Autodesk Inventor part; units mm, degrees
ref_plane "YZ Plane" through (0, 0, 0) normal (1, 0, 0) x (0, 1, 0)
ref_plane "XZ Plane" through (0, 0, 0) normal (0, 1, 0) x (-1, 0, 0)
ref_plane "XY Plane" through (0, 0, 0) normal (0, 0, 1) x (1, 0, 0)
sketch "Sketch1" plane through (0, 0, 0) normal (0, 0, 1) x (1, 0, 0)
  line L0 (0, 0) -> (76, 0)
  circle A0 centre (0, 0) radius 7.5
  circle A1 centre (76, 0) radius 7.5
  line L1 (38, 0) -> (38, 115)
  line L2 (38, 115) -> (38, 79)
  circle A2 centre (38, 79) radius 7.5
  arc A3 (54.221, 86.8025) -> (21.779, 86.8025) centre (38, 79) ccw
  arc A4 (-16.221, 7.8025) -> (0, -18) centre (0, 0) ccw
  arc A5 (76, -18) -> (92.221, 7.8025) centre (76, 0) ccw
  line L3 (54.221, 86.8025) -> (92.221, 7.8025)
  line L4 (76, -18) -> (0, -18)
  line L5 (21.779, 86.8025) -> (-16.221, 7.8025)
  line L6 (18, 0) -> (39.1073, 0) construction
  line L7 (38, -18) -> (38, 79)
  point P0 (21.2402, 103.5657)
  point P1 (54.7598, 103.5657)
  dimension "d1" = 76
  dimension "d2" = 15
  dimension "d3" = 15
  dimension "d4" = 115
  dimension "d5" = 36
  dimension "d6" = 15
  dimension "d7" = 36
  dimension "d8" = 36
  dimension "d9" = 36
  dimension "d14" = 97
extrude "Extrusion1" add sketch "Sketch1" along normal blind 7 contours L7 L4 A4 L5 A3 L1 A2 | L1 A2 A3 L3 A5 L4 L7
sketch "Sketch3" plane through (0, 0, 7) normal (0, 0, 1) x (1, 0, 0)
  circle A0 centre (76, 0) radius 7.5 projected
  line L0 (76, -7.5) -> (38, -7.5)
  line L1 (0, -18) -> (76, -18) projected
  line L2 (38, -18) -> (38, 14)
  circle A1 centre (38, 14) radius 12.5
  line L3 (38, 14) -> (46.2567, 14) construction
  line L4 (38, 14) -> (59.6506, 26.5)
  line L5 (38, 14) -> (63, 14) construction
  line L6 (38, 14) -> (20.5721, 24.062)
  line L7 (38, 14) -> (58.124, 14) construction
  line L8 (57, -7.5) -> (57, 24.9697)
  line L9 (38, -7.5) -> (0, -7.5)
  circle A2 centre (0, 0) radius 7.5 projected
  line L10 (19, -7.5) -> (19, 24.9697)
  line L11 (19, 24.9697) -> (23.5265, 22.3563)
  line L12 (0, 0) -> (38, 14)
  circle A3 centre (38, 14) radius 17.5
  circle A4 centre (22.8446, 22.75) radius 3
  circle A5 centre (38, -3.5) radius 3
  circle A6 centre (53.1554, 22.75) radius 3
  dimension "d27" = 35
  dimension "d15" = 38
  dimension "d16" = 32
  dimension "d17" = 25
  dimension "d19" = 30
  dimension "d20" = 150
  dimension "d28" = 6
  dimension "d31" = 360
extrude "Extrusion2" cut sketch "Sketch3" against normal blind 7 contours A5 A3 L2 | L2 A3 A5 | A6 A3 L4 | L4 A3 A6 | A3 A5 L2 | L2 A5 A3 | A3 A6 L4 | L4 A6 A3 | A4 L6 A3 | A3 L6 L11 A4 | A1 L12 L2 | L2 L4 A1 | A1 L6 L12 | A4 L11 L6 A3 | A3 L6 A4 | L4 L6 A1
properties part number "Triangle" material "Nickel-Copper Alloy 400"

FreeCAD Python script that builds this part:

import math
import FreeCAD as App
import Part
import Sketcher
from FreeCAD import Vector
Q = App.Units.Quantity

doc = App.newDocument("Part")
body = doc.addObject("PartDesign::Body", "Body")

# Sketch on XY plane
sketch1 = body.newObject("Sketcher::SketchObject", "Sketch")
sketch1.AttachmentSupport = (doc.getObject("XY_Plane"), [""])
sketch1.MapMode = "FlatFace"
sketch1.addGeometry([
    Part.LineSegment(Vector(0, -18, 0), Vector(76, -18, 0)),  # 0
    Part.ArcOfCircle(Part.Circle(Vector(76, 0, 0), Vector(0, 0, 1), 18), math.radians(-90), math.radians(25.688125)),  # 1
    Part.LineSegment(Vector(92.221, 7.8025, 0), Vector(54.221, 86.8025, 0)),  # 2
    Part.ArcOfCircle(Part.Circle(Vector(38, 79, 0), Vector(0, 0, 1), 17.999996), math.radians(25.688125), math.radians(154.311875)),  # 3
    Part.LineSegment(Vector(21.779, 86.8025, 0), Vector(-16.221, 7.8025, 0)),  # 4
    Part.ArcOfCircle(Part.Circle(Vector(0, 0, 0), Vector(0, 0, 1), 17.999996), math.radians(154.311875), math.radians(270)),  # 5
    Part.Circle(Vector(38, 79, 0), Vector(0, 0, 1), 7.5),  # 6
    Part.Circle(Vector(0, 0, 0), Vector(0, 0, 1), 7.5),  # 7
    Part.Circle(Vector(76, 0, 0), Vector(0, 0, 1), 7.5),  # 8
], False)
sketch1.addConstraint([
    Sketcher.Constraint("Tangent", 0, 2, 1, 1),
    Sketcher.Constraint("Tangent", 1, 2, 2, 1),
    Sketcher.Constraint("Tangent", 2, 2, 3, 1),
    Sketcher.Constraint("Tangent", 3, 2, 4, 1),
    Sketcher.Constraint("Tangent", 4, 2, 5, 1),
    Sketcher.Constraint("Tangent", 5, 2, 0, 1),
    Sketcher.Constraint("Horizontal", 0),
    Sketcher.Constraint("Coincident", 5, 3, -1, 1),
    Sketcher.Constraint("Coincident", 7, 3, -1, 1),
    Sketcher.Constraint("Coincident", 6, 3, 3, 3),
    Sketcher.Constraint("Coincident", 8, 3, 1, 3),
    Sketcher.Constraint("Equal", 1, 3),
    Sketcher.Constraint("Equal", 3, 5),
    Sketcher.Constraint("Equal", 6, 7),
    Sketcher.Constraint("Equal", 7, 8),
    Sketcher.Constraint("Horizontal", 2, 2, 3, 2),
    Sketcher.Constraint("Diameter", 6, Q("15 mm")),
    Sketcher.Constraint("Radius", 1, Q("18 mm")),
    Sketcher.Constraint("DistanceX", 0, 1, 0, 2, Q("76 mm")),
    Sketcher.Constraint("DistanceY", 0, 2, 3, 3, Q("97 mm")),
])
pad1 = body.newObject("PartDesign::Pad", "Pad")
pad1.Profile = sketch1
pad1.Length = 7

# Sketch on XY plane
sketch2 = body.newObject("Sketcher::SketchObject", "Sketch001")
sketch2.AttachmentSupport = (doc.getObject("XY_Plane"), [""])
sketch2.MapMode = "FlatFace"
sketch2.AttachmentOffset = App.Placement(Vector(0, 0, 7), App.Rotation())
sketch2.addGeometry([
    Part.Circle(Vector(38, -3.5, 0), Vector(0, 0, 1), 3),
    Part.Circle(Vector(53.1554, 22.75, 0), Vector(0, 0, 1), 3),
    Part.Circle(Vector(22.8446, 22.75, 0), Vector(0, 0, 1), 3),
    Part.Circle(Vector(38, 14, 0), Vector(0, 0, 1), 12.5),
], False)
sketch2.addConstraint([
    Sketcher.Constraint("Equal", 0, 1),
    Sketcher.Constraint("Equal", 1, 2),
    Sketcher.Constraint("Horizontal", 1, 3, 2, 3),
    Sketcher.Constraint("Vertical", 0, 3, 3, 3),
    Sketcher.Constraint("Diameter", 0, Q("6 mm")),
    Sketcher.Constraint("Diameter", 3, Q("25 mm")),
    Sketcher.Constraint("DistanceX", -1, 1, 0, 3, Q("38 mm")),
    Sketcher.Constraint("DistanceY", -1, 1, 3, 3, Q("14 mm")),
    Sketcher.Constraint("DistanceY", 0, 3, -1, 1, Q("3.5 mm")),
    Sketcher.Constraint("DistanceY", -1, 1, 1, 3, Q("22.75 mm")),
    Sketcher.Constraint("DistanceX", -1, 1, 1, 3, Q("53.1554 mm")),
    Sketcher.Constraint("DistanceX", -1, 1, 2, 3, Q("22.8446 mm")),
])
pocket1 = body.newObject("PartDesign::Pocket", "Pocket")
pocket1.Profile = sketch2
pocket1.Length = 7

doc.recompute()
